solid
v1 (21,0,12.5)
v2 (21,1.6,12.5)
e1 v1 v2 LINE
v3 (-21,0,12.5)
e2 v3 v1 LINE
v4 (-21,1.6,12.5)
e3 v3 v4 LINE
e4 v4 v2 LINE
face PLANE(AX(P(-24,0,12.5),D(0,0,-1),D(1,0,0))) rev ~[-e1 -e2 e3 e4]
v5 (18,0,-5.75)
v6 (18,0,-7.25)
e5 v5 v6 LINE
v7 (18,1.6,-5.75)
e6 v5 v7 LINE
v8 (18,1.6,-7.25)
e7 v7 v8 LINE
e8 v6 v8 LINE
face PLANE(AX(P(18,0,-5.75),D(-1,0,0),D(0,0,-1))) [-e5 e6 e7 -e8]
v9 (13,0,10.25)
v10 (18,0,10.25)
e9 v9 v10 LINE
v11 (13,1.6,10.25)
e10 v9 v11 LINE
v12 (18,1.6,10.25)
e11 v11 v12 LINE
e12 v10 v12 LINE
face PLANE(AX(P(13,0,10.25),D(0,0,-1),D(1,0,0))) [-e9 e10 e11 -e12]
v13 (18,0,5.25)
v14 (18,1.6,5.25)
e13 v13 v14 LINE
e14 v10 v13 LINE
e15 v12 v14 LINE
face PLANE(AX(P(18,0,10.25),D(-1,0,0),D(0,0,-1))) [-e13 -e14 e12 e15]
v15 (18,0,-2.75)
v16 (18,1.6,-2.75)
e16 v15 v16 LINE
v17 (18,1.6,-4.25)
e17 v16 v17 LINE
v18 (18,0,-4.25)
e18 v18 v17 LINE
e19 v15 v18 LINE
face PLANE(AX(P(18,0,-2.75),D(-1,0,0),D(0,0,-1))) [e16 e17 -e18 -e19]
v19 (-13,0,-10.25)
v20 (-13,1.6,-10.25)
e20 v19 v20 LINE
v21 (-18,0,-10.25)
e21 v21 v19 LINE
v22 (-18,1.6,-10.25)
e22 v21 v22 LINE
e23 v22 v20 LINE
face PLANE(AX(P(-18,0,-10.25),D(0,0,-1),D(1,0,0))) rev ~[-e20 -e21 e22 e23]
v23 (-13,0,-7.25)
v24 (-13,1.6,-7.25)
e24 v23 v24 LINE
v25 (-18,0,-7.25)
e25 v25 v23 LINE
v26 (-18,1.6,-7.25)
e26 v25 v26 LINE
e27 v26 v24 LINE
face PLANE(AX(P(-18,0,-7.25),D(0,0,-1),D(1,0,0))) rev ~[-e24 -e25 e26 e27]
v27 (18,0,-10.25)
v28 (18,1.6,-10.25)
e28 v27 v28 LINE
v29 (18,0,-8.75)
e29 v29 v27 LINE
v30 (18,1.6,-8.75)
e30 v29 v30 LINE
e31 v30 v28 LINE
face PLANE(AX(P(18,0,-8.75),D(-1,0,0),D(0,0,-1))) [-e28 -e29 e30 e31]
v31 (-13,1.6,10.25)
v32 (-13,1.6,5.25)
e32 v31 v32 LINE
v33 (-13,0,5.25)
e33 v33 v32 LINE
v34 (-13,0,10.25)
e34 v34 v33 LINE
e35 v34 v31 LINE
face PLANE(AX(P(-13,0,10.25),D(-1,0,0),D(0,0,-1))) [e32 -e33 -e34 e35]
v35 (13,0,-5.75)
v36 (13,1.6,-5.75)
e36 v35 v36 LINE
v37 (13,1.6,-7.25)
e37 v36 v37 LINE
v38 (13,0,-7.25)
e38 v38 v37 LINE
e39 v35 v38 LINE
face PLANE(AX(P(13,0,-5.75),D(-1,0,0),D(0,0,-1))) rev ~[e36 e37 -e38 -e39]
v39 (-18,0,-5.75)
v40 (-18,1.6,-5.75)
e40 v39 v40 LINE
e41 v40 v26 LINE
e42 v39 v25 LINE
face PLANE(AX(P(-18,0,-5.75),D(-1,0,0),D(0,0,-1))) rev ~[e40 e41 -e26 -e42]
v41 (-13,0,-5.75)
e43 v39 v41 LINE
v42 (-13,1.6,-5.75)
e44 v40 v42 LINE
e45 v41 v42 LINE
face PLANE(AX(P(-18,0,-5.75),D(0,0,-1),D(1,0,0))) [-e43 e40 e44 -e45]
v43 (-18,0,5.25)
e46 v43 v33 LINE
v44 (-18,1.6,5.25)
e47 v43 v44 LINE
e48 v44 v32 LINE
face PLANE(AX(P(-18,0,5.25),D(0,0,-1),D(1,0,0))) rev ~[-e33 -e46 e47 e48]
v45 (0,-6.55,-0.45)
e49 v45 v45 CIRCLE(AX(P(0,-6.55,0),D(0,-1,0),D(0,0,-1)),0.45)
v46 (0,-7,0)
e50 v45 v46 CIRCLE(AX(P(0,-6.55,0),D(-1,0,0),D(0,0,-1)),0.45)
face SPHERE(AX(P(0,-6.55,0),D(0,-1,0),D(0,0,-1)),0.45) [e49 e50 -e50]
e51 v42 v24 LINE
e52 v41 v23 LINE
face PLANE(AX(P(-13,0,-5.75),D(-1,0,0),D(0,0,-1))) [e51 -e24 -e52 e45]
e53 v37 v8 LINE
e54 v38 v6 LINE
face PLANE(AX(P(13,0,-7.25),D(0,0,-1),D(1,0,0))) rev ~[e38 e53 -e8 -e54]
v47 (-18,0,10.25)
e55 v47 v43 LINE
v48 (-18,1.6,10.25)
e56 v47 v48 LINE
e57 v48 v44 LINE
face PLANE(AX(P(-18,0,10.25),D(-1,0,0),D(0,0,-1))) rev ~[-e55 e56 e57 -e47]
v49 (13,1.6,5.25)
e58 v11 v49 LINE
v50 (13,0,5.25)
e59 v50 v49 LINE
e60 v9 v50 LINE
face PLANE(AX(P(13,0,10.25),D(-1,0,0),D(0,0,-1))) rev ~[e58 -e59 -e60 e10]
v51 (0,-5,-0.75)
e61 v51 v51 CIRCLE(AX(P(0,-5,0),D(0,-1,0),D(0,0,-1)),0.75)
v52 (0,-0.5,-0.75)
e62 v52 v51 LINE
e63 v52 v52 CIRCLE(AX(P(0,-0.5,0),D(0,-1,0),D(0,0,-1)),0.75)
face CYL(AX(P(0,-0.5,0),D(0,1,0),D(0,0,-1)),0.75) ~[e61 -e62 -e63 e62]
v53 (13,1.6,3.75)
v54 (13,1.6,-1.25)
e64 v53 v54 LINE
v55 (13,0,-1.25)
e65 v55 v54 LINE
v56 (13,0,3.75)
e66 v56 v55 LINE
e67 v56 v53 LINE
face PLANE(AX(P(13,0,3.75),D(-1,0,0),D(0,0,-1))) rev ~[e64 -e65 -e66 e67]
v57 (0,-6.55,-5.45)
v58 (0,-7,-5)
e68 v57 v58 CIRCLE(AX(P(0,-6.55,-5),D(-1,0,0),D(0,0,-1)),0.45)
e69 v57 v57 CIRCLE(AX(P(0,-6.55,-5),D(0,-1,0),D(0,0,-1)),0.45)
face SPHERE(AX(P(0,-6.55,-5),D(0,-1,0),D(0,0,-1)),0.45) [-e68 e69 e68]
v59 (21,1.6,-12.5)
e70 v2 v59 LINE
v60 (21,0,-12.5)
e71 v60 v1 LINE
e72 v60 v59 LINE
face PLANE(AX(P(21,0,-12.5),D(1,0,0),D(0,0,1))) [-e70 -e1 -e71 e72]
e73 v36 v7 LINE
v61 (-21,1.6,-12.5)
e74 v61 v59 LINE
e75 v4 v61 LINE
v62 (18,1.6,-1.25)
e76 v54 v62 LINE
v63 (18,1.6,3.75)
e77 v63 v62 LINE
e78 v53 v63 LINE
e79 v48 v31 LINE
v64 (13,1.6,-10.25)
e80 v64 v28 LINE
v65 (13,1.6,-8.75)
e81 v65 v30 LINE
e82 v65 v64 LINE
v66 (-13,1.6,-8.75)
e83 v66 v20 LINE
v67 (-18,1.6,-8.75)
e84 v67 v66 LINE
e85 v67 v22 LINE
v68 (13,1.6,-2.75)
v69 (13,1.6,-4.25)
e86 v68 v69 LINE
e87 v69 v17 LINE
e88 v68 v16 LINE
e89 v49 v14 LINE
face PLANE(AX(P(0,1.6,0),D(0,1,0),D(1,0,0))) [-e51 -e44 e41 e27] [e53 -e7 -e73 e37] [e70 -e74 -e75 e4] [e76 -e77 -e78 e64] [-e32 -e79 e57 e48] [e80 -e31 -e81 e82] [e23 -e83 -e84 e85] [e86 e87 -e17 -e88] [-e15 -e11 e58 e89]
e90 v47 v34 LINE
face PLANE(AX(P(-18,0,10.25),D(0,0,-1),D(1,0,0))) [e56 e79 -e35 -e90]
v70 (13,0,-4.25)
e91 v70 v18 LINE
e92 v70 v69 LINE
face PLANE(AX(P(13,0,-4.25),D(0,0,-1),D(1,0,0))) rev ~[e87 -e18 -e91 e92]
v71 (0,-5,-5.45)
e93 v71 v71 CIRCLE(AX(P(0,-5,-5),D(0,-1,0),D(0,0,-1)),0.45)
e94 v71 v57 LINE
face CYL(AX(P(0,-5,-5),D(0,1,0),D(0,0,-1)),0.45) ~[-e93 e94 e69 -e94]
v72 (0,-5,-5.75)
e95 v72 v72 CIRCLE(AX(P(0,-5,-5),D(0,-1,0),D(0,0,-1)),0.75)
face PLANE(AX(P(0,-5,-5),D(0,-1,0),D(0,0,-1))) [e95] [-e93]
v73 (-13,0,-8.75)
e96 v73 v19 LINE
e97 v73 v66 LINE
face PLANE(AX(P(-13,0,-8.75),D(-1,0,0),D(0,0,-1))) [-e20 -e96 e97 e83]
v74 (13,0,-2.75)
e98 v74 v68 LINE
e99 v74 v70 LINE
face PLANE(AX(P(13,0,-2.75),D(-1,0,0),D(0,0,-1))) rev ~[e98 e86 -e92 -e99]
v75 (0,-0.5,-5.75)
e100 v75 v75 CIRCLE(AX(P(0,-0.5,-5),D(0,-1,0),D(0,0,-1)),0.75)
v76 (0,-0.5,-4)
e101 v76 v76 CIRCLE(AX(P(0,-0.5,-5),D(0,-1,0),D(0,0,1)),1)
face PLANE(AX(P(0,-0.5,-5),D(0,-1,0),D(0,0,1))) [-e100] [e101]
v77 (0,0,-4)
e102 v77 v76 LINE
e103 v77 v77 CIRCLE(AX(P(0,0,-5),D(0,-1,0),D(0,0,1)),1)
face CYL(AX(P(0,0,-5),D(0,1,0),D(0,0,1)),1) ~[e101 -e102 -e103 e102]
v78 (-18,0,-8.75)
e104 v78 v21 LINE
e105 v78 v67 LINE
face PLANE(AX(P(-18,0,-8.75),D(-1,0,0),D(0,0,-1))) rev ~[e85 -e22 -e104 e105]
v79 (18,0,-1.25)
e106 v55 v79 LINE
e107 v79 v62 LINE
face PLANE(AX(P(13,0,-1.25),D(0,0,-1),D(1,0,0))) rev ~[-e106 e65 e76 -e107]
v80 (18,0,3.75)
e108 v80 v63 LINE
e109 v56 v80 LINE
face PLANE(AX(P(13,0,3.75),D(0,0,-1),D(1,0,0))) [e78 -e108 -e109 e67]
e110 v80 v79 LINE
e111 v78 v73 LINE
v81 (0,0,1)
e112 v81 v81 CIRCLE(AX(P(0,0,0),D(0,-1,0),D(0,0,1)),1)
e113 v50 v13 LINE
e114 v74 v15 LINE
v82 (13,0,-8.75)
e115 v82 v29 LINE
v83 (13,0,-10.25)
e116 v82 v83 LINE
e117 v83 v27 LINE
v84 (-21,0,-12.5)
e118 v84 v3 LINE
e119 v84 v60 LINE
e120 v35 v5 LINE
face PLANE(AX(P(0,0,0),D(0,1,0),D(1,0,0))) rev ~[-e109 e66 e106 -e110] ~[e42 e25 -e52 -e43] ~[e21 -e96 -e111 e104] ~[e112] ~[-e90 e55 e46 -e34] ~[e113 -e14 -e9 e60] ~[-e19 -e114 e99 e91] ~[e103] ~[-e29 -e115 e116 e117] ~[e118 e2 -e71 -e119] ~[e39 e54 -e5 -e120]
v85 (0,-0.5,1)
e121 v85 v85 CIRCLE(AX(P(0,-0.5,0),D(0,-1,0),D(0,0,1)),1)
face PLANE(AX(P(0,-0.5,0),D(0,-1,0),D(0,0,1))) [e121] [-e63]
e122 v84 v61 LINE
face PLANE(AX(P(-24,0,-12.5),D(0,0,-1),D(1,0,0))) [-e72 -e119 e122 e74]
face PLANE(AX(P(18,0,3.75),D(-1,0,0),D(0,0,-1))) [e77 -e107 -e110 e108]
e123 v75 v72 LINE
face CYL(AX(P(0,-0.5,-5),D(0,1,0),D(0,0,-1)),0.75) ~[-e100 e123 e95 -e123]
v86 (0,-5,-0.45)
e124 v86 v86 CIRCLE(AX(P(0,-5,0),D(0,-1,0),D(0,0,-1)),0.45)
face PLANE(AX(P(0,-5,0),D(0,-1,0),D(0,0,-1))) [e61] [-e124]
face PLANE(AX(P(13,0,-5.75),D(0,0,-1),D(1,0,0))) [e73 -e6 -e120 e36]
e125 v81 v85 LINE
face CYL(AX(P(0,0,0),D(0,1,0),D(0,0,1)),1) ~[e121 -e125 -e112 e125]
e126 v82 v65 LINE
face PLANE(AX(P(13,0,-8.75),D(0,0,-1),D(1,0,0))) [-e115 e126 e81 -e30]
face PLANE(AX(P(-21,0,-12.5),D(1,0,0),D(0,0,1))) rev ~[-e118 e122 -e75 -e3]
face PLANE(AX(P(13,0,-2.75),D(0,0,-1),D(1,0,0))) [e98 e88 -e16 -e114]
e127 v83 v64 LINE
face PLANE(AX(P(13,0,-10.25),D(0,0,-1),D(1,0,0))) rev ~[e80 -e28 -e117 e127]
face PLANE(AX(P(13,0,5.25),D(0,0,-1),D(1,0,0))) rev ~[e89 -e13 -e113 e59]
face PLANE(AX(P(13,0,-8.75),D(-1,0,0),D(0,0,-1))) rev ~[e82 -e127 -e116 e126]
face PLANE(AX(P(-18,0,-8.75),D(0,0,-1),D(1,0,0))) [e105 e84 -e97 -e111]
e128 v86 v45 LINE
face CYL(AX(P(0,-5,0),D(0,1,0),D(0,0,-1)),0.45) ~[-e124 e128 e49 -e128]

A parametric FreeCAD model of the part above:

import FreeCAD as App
import Part
import Sketcher

V = App.Vector
Q = App.Units.Quantity


def edges_at(feature, points):
    """Names of the edges that pass closest to the given points."""
    edges = feature.Shape.Edges
    near = lambda p: min(range(len(edges)), key=lambda i: edges[i].distToShape(Part.Vertex(*p))[0])
    return sorted({f"Edge{near(p) + 1}" for p in points})

doc = App.newDocument("Part")
body = doc.addObject("PartDesign::Body", "Body")

# Sketch on XZ plane
sketch1 = doc.addObject("Sketcher::SketchObject", "Sketch")
body.addObject(sketch1)
sketch1.AttachmentSupport = (doc.XZ_Plane, [""])
sketch1.MapMode = "FlatFace"
sketch1.addGeometry([
    Part.LineSegment(V(-24, -12.5, 0), V(-24, 12.5, 0)),  # 0
    Part.LineSegment(V(-24, 12.5, 0), V(24, 12.5, 0)),  # 1
    Part.LineSegment(V(24, 12.5, 0), V(24, -12.5, 0)),  # 2
    Part.LineSegment(V(24, -12.5, 0), V(-24, -12.5, 0)),  # 3
    Part.LineSegment(V(-13, 10.25, 0), V(-18, 10.25, 0)),  # 4
    Part.LineSegment(V(-18, 10.25, 0), V(-18, 5.25, 0)),  # 5
    Part.LineSegment(V(-18, 5.25, 0), V(-13, 5.25, 0)),  # 6
    Part.LineSegment(V(-13, 5.25, 0), V(-13, 10.25, 0)),  # 7
    Part.LineSegment(V(18, 10.25, 0), V(13, 10.25, 0)),  # 8
    Part.LineSegment(V(13, 10.25, 0), V(13, 5.25, 0)),  # 9
    Part.LineSegment(V(13, 5.25, 0), V(18, 5.25, 0)),  # 10
    Part.LineSegment(V(18, 5.25, 0), V(18, 10.25, 0)),  # 11
    Part.LineSegment(V(18, 3.75, 0), V(13, 3.75, 0)),  # 12
    Part.LineSegment(V(13, 3.75, 0), V(13, -1.25, 0)),  # 13
    Part.LineSegment(V(13, -1.25, 0), V(18, -1.25, 0)),  # 14
    Part.LineSegment(V(18, -1.25, 0), V(18, 3.75, 0)),  # 15
    Part.LineSegment(V(-13, -5.75, 0), V(-18, -5.75, 0)),  # 16
    Part.LineSegment(V(-18, -5.75, 0), V(-18, -7.25, 0)),  # 17
    Part.LineSegment(V(-18, -7.25, 0), V(-13, -7.25, 0)),  # 18
    Part.LineSegment(V(-13, -7.25, 0), V(-13, -5.75, 0)),  # 19
    Part.LineSegment(V(-13, -8.75, 0), V(-18, -8.75, 0)),  # 20
    Part.LineSegment(V(-18, -8.75, 0), V(-18, -10.25, 0)),  # 21
    Part.LineSegment(V(-18, -10.25, 0), V(-13, -10.25, 0)),  # 22
    Part.LineSegment(V(-13, -10.25, 0), V(-13, -8.75, 0)),  # 23
    Part.LineSegment(V(18, -2.75, 0), V(13, -2.75, 0)),  # 24
    Part.LineSegment(V(13, -2.75, 0), V(13, -4.25, 0)),  # 25
    Part.LineSegment(V(13, -4.25, 0), V(18, -4.25, 0)),  # 26
    Part.LineSegment(V(18, -4.25, 0), V(18, -2.75, 0)),  # 27
    Part.LineSegment(V(18, -5.75, 0), V(13, -5.75, 0)),  # 28
    Part.LineSegment(V(13, -5.75, 0), V(13, -7.25, 0)),  # 29
    Part.LineSegment(V(13, -7.25, 0), V(18, -7.25, 0)),  # 30
    Part.LineSegment(V(18, -7.25, 0), V(18, -5.75, 0)),  # 31
    Part.LineSegment(V(18, -8.75, 0), V(13, -8.75, 0)),  # 32
    Part.LineSegment(V(13, -8.75, 0), V(13, -10.25, 0)),  # 33
    Part.LineSegment(V(13, -10.25, 0), V(18, -10.25, 0)),  # 34
    Part.LineSegment(V(18, -10.25, 0), V(18, -8.75, 0)),  # 35
], False)
sketch1.addConstraint([
    Sketcher.Constraint("Coincident", 0, 2, 1, 1),
    Sketcher.Constraint("Coincident", 1, 2, 2, 1),
    Sketcher.Constraint("Coincident", 2, 2, 3, 1),
    Sketcher.Constraint("Coincident", 3, 2, 0, 1),
    Sketcher.Constraint("Coincident", 4, 2, 5, 1),
    Sketcher.Constraint("Coincident", 5, 2, 6, 1),
    Sketcher.Constraint("Coincident", 6, 2, 7, 1),
    Sketcher.Constraint("Coincident", 7, 2, 4, 1),
    Sketcher.Constraint("Coincident", 8, 2, 9, 1),
    Sketcher.Constraint("Coincident", 9, 2, 10, 1),
    Sketcher.Constraint("Coincident", 10, 2, 11, 1),
    Sketcher.Constraint("Coincident", 11, 2, 8, 1),
    Sketcher.Constraint("Coincident", 12, 2, 13, 1),
    Sketcher.Constraint("Coincident", 13, 2, 14, 1),
    Sketcher.Constraint("Coincident", 14, 2, 15, 1),
    Sketcher.Constraint("Coincident", 15, 2, 12, 1),
    Sketcher.Constraint("Coincident", 16, 2, 17, 1),
    Sketcher.Constraint("Coincident", 17, 2, 18, 1),
    Sketcher.Constraint("Coincident", 18, 2, 19, 1),
    Sketcher.Constraint("Coincident", 19, 2, 16, 1),
    Sketcher.Constraint("Coincident", 20, 2, 21, 1),
    Sketcher.Constraint("Coincident", 21, 2, 22, 1),
    Sketcher.Constraint("Coincident", 22, 2, 23, 1),
    Sketcher.Constraint("Coincident", 23, 2, 20, 1),
    Sketcher.Constraint("Coincident", 24, 2, 25, 1),
    Sketcher.Constraint("Coincident", 25, 2, 26, 1),
    Sketcher.Constraint("Coincident", 26, 2, 27, 1),
    Sketcher.Constraint("Coincident", 27, 2, 24, 1),
    Sketcher.Constraint("Coincident", 28, 2, 29, 1),
    Sketcher.Constraint("Coincident", 29, 2, 30, 1),
    Sketcher.Constraint("Coincident", 30, 2, 31, 1),
    Sketcher.Constraint("Coincident", 31, 2, 28, 1),
    Sketcher.Constraint("Coincident", 32, 2, 33, 1),
    Sketcher.Constraint("Coincident", 33, 2, 34, 1),
    Sketcher.Constraint("Coincident", 34, 2, 35, 1),
    Sketcher.Constraint("Coincident", 35, 2, 32, 1),
    Sketcher.Constraint("Vertical", 0),
    Sketcher.Constraint("Horizontal", 1),
    Sketcher.Constraint("Vertical", 2),
    Sketcher.Constraint("Horizontal", 3),
    Sketcher.Constraint("Horizontal", 4),
    Sketcher.Constraint("Vertical", 5),
    Sketcher.Constraint("Horizontal", 6),
    Sketcher.Constraint("Vertical", 7),
    Sketcher.Constraint("Horizontal", 8),
    Sketcher.Constraint("Vertical", 9),
    Sketcher.Constraint("Horizontal", 10),
    Sketcher.Constraint("Vertical", 11),
    Sketcher.Constraint("Horizontal", 12),
    Sketcher.Constraint("Vertical", 13),
    Sketcher.Constraint("Horizontal", 14),
    Sketcher.Constraint("Vertical", 15),
    Sketcher.Constraint("Horizontal", 16),
    Sketcher.Constraint("Vertical", 17),
    Sketcher.Constraint("Horizontal", 18),
    Sketcher.Constraint("Vertical", 19),
    Sketcher.Constraint("Horizontal", 20),
    Sketcher.Constraint("Vertical", 21),
    Sketcher.Constraint("Horizontal", 22),
    Sketcher.Constraint("Vertical", 23),
    Sketcher.Constraint("Horizontal", 24),
    Sketcher.Constraint("Vertical", 25),
    Sketcher.Constraint("Horizontal", 26),
    Sketcher.Constraint("Vertical", 27),
    Sketcher.Constraint("Horizontal", 28),
    Sketcher.Constraint("Vertical", 29),
    Sketcher.Constraint("Horizontal", 30),
    Sketcher.Constraint("Vertical", 31),
    Sketcher.Constraint("Horizontal", 32),
    Sketcher.Constraint("Vertical", 33),
    Sketcher.Constraint("Horizontal", 34),
    Sketcher.Constraint("Vertical", 35),
    Sketcher.Constraint("Symmetric", 0, 2, 2, 2, -1, 1),
    Sketcher.Constraint("Symmetric", 11, 2, 21, 2, -1, 1),
    Sketcher.Constraint("Symmetric", 7, 2, 33, 2, -1, 1),
    Sketcher.Constraint("Symmetric", 7, 2, 8, 2, -2),
    Sketcher.Constraint("Symmetric", 5, 2, 10, 2, -2),
    Sketcher.Constraint("Symmetric", 19, 2, 28, 2, -2),
    Sketcher.Constraint("Symmetric", 17, 2, 30, 2, -2),
    Sketcher.Constraint("Symmetric", 23, 2, 32, 2, -2),
    Sketcher.Constraint("Vertical", 9, 2, 12, 2),
    Sketcher.Constraint("Vertical", 11, 2, 14, 2),
    Sketcher.Constraint("Vertical", 5, 2, 16, 2),
    Sketcher.Constraint("Vertical", 7, 2, 18, 2),
    Sketcher.Constraint("Vertical", 13, 2, 24, 2),
    Sketcher.Constraint("Vertical", 15, 2, 26, 2),
    Sketcher.Constraint("Vertical", 31, 2, 34, 2),
    Sketcher.Constraint("Equal", 34, 5),
    Sketcher.Constraint("Equal", 11, 13),
    Sketcher.Constraint("Equal", 19, 21),
    Sketcher.Constraint("Equal", 23, 25),
    Sketcher.Constraint("DistanceX", 1, 1, 1, 2, Q("48 mm")),
    Sketcher.Constraint("DistanceX", 4, 2, 4, 1, Q("5 mm")),
    Sketcher.Constraint("DistanceY", 0, 1, 0, 2, Q("25 mm")),
    Sketcher.Constraint("DistanceY", 17, 2, 17, 1, Q("1.5 mm")),
    Sketcher.Constraint("DistanceX", 4, 2, -1, 1, Q("18 mm")),
    Sketcher.Constraint("DistanceY", 16, 2, 5, 2, Q("11 mm")),
    Sketcher.Constraint("DistanceY", 20, 2, 16, 2, Q("3 mm")),
    Sketcher.Constraint("DistanceY", 24, 2, 9, 2, Q("8 mm")),
    Sketcher.Constraint("DistanceY", 25, 2, 13, 2, Q("3 mm")),
])
pad1 = doc.addObject("PartDesign::Pad", "Pad")
body.addObject(pad1)
pad1.Profile = sketch1
pad1.Length = 1.6
pad1.Reversed = True

# Sketch on XZ plane
sketch2 = doc.addObject("Sketcher::SketchObject", "Sketch001")
body.addObject(sketch2)
sketch2.AttachmentSupport = (doc.XZ_Plane, [""])
sketch2.MapMode = "FlatFace"
sketch2.addGeometry([
    Part.Circle(V(0, 0, 0), V(0, 0, 1), 1),
    Part.Circle(V(0, -5, 0), V(0, 0, 1), 1),
], False)
sketch2.addConstraint([
    Sketcher.Constraint("Coincident", 0, 3, -1, 1),
    Sketcher.Constraint("Equal", 0, 1),
    Sketcher.Constraint("PointOnObject", 1, 3, -2),
    Sketcher.Constraint("Diameter", 0, Q("2 mm")),
    Sketcher.Constraint("DistanceY", 1, 3, -1, 1, Q("5 mm")),
])
pad2 = doc.addObject("PartDesign::Pad", "Pad001")
body.addObject(pad2)
pad2.Profile = sketch2
pad2.Length = 0.5

# Sketch on XZ plane
sketch3 = doc.addObject("Sketcher::SketchObject", "Sketch002")
body.addObject(sketch3)
sketch3.AttachmentSupport = (doc.XZ_Plane, [""])
sketch3.MapMode = "FlatFace"
sketch3.AttachmentOffset = App.Placement(V(0, 0, 0.5), App.Rotation())
sketch3.addGeometry([
    Part.Circle(V(0, 0, 0), V(0, 0, 1), 0.75),
    Part.Circle(V(0, -5, 0), V(0, 0, 1), 0.75),
], False)
sketch3.addConstraint([
    Sketcher.Constraint("Coincident", 0, 3, -1, 1),
    Sketcher.Constraint("Equal", 0, 1),
    Sketcher.Constraint("PointOnObject", 1, 3, -2),
    Sketcher.Constraint("Diameter", 0, Q("1.5 mm")),
    Sketcher.Constraint("DistanceY", 1, 3, -1, 1, Q("5 mm")),
])
pad3 = doc.addObject("PartDesign::Pad", "Pad002")
body.addObject(pad3)
pad3.Profile = sketch3
pad3.Length = 4.5

# Sketch on XZ plane
sketch4 = doc.addObject("Sketcher::SketchObject", "Sketch003")
body.addObject(sketch4)
sketch4.AttachmentSupport = (doc.XZ_Plane, [""])
sketch4.MapMode = "FlatFace"
sketch4.AttachmentOffset = App.Placement(V(0, 0, 5), App.Rotation())
sketch4.addGeometry([
    Part.Circle(V(0, 0, 0), V(0, 0, 1), 0.45),
    Part.Circle(V(0, -5, 0), V(0, 0, 1), 0.45),
], False)
sketch4.addConstraint([
    Sketcher.Constraint("Coincident", 0, 3, -1, 1),
    Sketcher.Constraint("Equal", 0, 1),
    Sketcher.Constraint("PointOnObject", 1, 3, -2),
    Sketcher.Constraint("Diameter", 0, Q("0.9 mm")),
    Sketcher.Constraint("DistanceY", 1, 3, -1, 1, Q("5 mm")),
])
pad4 = doc.addObject("PartDesign::Pad", "Pad003")
body.addObject(pad4)
pad4.Profile = sketch4
pad4.Length = 2
doc.recompute()

fillet = doc.addObject("PartDesign::Fillet", "Fillet")
body.addObject(fillet)
fillet.Base = (pad4, edges_at(pad4, [(0, -7, 0.45), (0, -7, -4.55)]))
fillet.Radius = 0.45

# Sketch on XZ plane
sketch5 = doc.addObject("Sketcher::SketchObject", "Sketch004")
body.addObject(sketch5)
sketch5.AttachmentSupport = (doc.XZ_Plane, [""])
sketch5.MapMode = "FlatFace"
sketch5.addGeometry([
    Part.LineSegment(V(-24, 12.5, 0), V(-24, -12.5, 0)),  # 0
    Part.LineSegment(V(-24, -12.5, 0), V(-21, -12.5, 0)),  # 1
    Part.LineSegment(V(-21, -12.5, 0), V(-21, 12.5, 0)),  # 2
    Part.LineSegment(V(-21, 12.5, 0), V(-24, 12.5, 0)),  # 3
    Part.LineSegment(V(21, 12.5, 0), V(21, -12.5, 0)),  # 4
    Part.LineSegment(V(21, -12.5, 0), V(24, -12.5, 0)),  # 5
    Part.LineSegment(V(24, -12.5, 0), V(24, 12.5, 0)),  # 6
    Part.LineSegment(V(24, 12.5, 0), V(21, 12.5, 0)),  # 7
], False)
sketch5.addConstraint([
    Sketcher.Constraint("Coincident", 0, 2, 1, 1),
    Sketcher.Constraint("Coincident", 1, 2, 2, 1),
    Sketcher.Constraint("Coincident", 2, 2, 3, 1),
    Sketcher.Constraint("Coincident", 3, 2, 0, 1),
    Sketcher.Constraint("Coincident", 4, 2, 5, 1),
    Sketcher.Constraint("Coincident", 5, 2, 6, 1),
    Sketcher.Constraint("Coincident", 6, 2, 7, 1),
    Sketcher.Constraint("Coincident", 7, 2, 4, 1),
    Sketcher.Constraint("Vertical", 0),
    Sketcher.Constraint("Horizontal", 1),
    Sketcher.Constraint("Vertical", 2),
    Sketcher.Constraint("Horizontal", 3),
    Sketcher.Constraint("Vertical", 4),
    Sketcher.Constraint("Horizontal", 5),
    Sketcher.Constraint("Vertical", 6),
    Sketcher.Constraint("Horizontal", 7),
    Sketcher.Constraint("Symmetric", 2, 2, 4, 2, -1, 1),
    Sketcher.Constraint("Symmetric", 0, 2, 6, 2, -1, 1),
    Sketcher.Constraint("Horizontal", 1, 2, 4, 2),
    Sketcher.Constraint("DistanceX", 1, 1, 1, 2, Q("3 mm")),
    Sketcher.Constraint("DistanceY", 0, 2, 0, 1, Q("25 mm")),
    Sketcher.Constraint("DistanceX", 0, 2, -1, 1, Q("24 mm")),
])
pocket1 = doc.addObject("PartDesign::Pocket", "Pocket")
body.addObject(pocket1)
pocket1.Profile = sketch5
pocket1.Length = 10

doc.recompute()
